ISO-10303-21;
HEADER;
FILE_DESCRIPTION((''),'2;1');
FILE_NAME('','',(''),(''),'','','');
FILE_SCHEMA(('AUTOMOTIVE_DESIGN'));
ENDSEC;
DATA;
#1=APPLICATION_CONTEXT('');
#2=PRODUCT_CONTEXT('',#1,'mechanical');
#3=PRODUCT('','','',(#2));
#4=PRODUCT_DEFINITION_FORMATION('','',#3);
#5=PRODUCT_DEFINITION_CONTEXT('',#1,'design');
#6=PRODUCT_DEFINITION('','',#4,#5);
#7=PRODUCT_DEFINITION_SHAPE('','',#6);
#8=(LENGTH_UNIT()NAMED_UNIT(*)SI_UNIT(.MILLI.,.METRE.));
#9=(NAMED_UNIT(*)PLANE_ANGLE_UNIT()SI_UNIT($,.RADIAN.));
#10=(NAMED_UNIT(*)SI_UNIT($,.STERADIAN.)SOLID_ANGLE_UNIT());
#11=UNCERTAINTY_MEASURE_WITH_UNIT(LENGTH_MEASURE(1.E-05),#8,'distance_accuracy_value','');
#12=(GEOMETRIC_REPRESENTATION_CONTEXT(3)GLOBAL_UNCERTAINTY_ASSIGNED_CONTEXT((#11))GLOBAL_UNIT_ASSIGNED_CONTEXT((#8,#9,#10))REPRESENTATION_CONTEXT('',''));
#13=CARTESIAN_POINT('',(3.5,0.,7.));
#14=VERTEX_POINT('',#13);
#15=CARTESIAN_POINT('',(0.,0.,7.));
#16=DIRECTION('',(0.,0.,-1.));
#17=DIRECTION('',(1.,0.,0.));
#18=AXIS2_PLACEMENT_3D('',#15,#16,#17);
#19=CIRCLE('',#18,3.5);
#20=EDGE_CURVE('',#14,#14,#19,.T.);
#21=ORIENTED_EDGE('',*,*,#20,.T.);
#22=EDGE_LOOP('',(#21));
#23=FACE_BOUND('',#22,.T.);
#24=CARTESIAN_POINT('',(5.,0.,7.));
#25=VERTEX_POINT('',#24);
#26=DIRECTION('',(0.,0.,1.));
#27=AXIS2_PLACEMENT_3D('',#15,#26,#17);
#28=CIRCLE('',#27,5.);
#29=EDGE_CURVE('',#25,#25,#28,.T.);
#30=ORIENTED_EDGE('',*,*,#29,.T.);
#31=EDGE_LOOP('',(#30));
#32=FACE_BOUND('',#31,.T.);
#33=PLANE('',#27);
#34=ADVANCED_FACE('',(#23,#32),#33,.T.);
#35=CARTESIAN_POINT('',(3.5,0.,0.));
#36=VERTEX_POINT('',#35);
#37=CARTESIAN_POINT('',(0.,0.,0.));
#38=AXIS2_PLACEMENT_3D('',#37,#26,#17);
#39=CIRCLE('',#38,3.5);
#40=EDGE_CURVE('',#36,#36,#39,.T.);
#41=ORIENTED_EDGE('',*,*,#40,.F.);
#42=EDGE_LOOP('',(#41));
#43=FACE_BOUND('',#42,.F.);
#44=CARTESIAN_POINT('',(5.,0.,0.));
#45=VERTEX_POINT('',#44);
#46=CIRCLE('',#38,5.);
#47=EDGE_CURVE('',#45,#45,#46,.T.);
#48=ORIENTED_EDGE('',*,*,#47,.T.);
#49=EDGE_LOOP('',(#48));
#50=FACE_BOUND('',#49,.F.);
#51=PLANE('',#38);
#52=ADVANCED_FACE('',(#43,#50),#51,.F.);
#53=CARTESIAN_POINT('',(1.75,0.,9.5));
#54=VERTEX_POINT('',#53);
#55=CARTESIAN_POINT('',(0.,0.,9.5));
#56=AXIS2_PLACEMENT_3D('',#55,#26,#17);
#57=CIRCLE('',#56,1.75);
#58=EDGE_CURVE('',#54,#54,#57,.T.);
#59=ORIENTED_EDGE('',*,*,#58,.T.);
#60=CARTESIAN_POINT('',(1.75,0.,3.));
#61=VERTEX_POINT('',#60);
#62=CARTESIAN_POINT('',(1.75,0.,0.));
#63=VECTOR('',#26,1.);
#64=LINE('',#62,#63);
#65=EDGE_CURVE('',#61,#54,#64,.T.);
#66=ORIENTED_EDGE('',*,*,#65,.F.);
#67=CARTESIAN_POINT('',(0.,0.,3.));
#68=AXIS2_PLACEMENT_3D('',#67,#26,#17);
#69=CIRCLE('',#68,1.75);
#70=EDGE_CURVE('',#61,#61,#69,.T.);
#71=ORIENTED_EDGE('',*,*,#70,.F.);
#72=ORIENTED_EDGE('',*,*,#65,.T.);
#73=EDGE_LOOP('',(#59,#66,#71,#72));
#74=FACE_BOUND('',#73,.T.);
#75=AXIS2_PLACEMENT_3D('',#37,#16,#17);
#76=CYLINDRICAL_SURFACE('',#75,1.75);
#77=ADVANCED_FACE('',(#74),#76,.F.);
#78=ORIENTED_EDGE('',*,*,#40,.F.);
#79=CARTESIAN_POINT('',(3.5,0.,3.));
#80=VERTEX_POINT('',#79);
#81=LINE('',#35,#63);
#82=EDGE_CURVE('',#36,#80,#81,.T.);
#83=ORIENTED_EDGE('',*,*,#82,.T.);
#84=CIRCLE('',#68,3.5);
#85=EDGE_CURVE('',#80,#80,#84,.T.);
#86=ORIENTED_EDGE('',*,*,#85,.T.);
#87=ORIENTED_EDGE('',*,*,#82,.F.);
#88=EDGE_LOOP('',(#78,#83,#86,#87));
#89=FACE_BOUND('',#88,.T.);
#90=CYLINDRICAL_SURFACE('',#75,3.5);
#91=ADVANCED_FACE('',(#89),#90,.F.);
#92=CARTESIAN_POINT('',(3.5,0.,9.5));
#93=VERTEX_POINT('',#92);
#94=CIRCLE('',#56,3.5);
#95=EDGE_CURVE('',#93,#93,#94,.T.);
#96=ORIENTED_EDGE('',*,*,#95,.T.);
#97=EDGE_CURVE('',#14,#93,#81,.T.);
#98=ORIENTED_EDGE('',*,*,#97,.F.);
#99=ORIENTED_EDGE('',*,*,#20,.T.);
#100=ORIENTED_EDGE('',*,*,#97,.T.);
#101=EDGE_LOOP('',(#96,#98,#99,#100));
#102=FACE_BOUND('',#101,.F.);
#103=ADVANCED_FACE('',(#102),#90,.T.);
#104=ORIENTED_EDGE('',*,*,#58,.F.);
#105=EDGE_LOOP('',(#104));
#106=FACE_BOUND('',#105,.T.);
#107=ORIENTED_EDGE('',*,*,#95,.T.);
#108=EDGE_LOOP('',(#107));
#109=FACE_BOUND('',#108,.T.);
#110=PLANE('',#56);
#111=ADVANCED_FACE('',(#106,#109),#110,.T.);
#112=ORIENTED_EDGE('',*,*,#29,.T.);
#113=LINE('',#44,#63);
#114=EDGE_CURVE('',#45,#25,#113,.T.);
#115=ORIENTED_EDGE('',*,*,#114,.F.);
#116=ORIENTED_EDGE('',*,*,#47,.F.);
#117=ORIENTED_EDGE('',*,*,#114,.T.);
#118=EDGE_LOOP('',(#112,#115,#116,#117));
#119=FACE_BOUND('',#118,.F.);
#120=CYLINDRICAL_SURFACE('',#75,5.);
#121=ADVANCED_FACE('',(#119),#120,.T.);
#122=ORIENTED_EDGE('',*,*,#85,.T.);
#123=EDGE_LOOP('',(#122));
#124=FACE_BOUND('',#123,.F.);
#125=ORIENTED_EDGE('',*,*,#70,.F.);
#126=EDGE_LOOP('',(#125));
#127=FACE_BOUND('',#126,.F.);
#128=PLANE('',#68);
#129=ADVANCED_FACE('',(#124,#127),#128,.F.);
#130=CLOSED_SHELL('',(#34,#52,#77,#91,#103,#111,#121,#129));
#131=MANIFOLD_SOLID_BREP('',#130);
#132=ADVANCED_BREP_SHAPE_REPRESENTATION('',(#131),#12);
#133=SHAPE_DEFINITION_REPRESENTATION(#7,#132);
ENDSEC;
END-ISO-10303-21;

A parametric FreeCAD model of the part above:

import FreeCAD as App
import Part
import Sketcher

V = App.Vector

doc = App.newDocument("Part")
params = doc.addObject("Spreadsheet::Sheet", "Params")
for row, (alias, value) in enumerate([
    ("sketch1_diameter", "10 mm"),
    ("sketch1_diameter2", "3.5 mm"),
    ("pad1_length", "7 mm"),
    ("sketch2_diameter", "7 mm"),
    ("sketch2_diameter2", "3.5 mm"),
    ("pad2_length", "9.5 mm"),
    ("sketch3_diameter", "7 mm"),
    ("sketch3_diameter2", "3.5 mm"),
    ("pocket1_length", "3 mm"),
], start=1):
    params.set(f"A{row}", alias)
    params.set(f"B{row}", "=" + value)
    params.setAlias(f"B{row}", alias)

body = doc.addObject("PartDesign::Body", "Body")

sketch1 = body.newObject("Sketcher::SketchObject", "Sketch")
sketch1.AttachmentSupport = (doc.getObject("XY_Plane"), [""])
sketch1.MapMode = "FlatFace"
sketch1.addGeometry(Part.Circle(V(0, 0, 0), V(0, 0, 1), 5), False)
sketch1.addGeometry(Part.Circle(V(0, 0, 0), V(0, 0, 1), 1.8), False)
sketch1.addConstraint(Sketcher.Constraint("Coincident", 0, 3, -1, 1))
sketch1.addConstraint(Sketcher.Constraint("Coincident", 1, 3, -1, 1))
sketch1.addConstraint(Sketcher.Constraint("Diameter", 0, 10.0))
sketch1.addConstraint(Sketcher.Constraint("Diameter", 1, 3.5))
sketch1.setExpression("Constraints[2]", "Params.sketch1_diameter")
sketch1.setExpression("Constraints[3]", "Params.sketch1_diameter2")
pad1 = body.newObject("PartDesign::Pad", "Pad")
pad1.Profile = sketch1
pad1.setExpression("Length", "Params.pad1_length")

sketch2 = body.newObject("Sketcher::SketchObject", "Sketch001")
sketch2.AttachmentSupport = (doc.getObject("XY_Plane"), [""])
sketch2.MapMode = "FlatFace"
sketch2.addGeometry(Part.Circle(V(0, 0, 0), V(0, 0, 1), 3.5), False)
sketch2.addGeometry(Part.Circle(V(0, 0, 0), V(0, 0, 1), 1.8), False)
sketch2.addConstraint(Sketcher.Constraint("Coincident", 0, 3, -1, 1))
sketch2.addConstraint(Sketcher.Constraint("Coincident", 1, 3, -1, 1))
sketch2.addConstraint(Sketcher.Constraint("Diameter", 0, 7.0))
sketch2.addConstraint(Sketcher.Constraint("Diameter", 1, 3.5))
sketch2.setExpression("Constraints[2]", "Params.sketch2_diameter")
sketch2.setExpression("Constraints[3]", "Params.sketch2_diameter2")
pad2 = body.newObject("PartDesign::Pad", "Pad001")
pad2.Profile = sketch2
pad2.setExpression("Length", "Params.pad2_length")

sketch3 = body.newObject("Sketcher::SketchObject", "Sketch002")
sketch3.AttachmentSupport = (doc.getObject("XY_Plane"), [""])
sketch3.MapMode = "FlatFace"
sketch3.addGeometry(Part.Circle(V(0, 0, 0), V(0, 0, 1), 3.5), False)
sketch3.addGeometry(Part.Circle(V(0, 0, 0), V(0, 0, 1), 1.8), False)
sketch3.addConstraint(Sketcher.Constraint("Coincident", 0, 3, -1, 1))
sketch3.addConstraint(Sketcher.Constraint("Coincident", 1, 3, -1, 1))
sketch3.addConstraint(Sketcher.Constraint("Diameter", 0, 7.0))
sketch3.addConstraint(Sketcher.Constraint("Diameter", 1, 3.5))
sketch3.setExpression("Constraints[2]", "Params.sketch3_diameter")
sketch3.setExpression("Constraints[3]", "Params.sketch3_diameter2")
pocket1 = body.newObject("PartDesign::Pocket", "Pocket")
pocket1.Profile = sketch3
pocket1.setExpression("Length", "Params.pocket1_length")
pocket1.Reversed = True

doc.recompute()
